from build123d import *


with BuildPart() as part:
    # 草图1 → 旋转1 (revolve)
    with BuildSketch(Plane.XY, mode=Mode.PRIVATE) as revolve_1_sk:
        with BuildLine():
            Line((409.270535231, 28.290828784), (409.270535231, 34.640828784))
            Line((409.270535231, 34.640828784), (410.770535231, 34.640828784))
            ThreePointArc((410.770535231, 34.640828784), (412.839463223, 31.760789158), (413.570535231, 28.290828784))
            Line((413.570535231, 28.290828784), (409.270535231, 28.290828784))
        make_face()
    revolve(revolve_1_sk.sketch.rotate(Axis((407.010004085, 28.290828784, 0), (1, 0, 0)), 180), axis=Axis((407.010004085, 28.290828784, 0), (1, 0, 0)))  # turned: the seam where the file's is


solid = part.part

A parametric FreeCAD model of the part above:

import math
import FreeCAD as App
import Part
import Sketcher
Q = App.Units.Quantity

doc = App.newDocument("Part")
body = doc.addObject("PartDesign::Body", "Body")

# Sketch on XY plane
sketch1 = doc.addObject("Sketcher::SketchObject", "Sketch")
body.addObject(sketch1)
sketch1.AttachmentSupport = (doc.XY_Plane, [""])
sketch1.MapMode = "FlatFace"
sketch1.addGeometry(Part.LineSegment(App.Vector(409.3, 34.6, 0), App.Vector(409.3, 28.3, 0)), False)
sketch1.addGeometry(Part.LineSegment(App.Vector(409.3, 28.3, 0), App.Vector(413.6, 28.3, 0)), False)
sketch1.addGeometry(Part.ArcOfCircle(Part.Circle(App.Vector(405, 28.3, 0), App.Vector(0, 0, 1), 8.6), math.radians(0), math.radians(48)), False)
sketch1.addGeometry(Part.LineSegment(App.Vector(410.8, 34.6, 0), App.Vector(409.3, 34.6, 0)), False)
sketch1.addGeometry(Part.LineSegment(App.Vector(405, 28.3, 0), App.Vector(413.6, 28.3, 0)), True)  # axis
sketch1.addConstraint(Sketcher.Constraint("Coincident", 0, 2, 1, 1))
sketch1.addConstraint(Sketcher.Constraint("Coincident", 1, 2, 2, 1))
sketch1.addConstraint(Sketcher.Constraint("Coincident", 2, 2, 3, 1))
sketch1.addConstraint(Sketcher.Constraint("Coincident", 3, 2, 0, 1))
sketch1.addConstraint(Sketcher.Constraint("Vertical", 0))
sketch1.addConstraint(Sketcher.Constraint("Horizontal", 1))
sketch1.addConstraint(Sketcher.Constraint("Horizontal", 3))
sketch1.addConstraint(Sketcher.Constraint("Horizontal", 4))
sketch1.addConstraint(Sketcher.Constraint("Coincident", 4, 1, 2, 3))
sketch1.addConstraint(Sketcher.Constraint("Coincident", 4, 2, 1, 2))
sketch1.addConstraint(Sketcher.Constraint("DistanceX", 1, 1, 1, 2, Q("4.3 mm")))
sketch1.addConstraint(Sketcher.Constraint("DistanceX", 3, 2, 3, 1, Q("1.5 mm")))
sketch1.addConstraint(Sketcher.Constraint("DistanceY", 0, 2, 0, 1, Q("6.35 mm")))
sketch1.addConstraint(Sketcher.Constraint("DistanceX", -1, 1, 2, 3, Q("404.970089 mm")))
sketch1.addConstraint(Sketcher.Constraint("DistanceY", -1, 1, 2, 3, Q("28.290829 mm")))
revolution = doc.addObject("PartDesign::Revolution", "Revolution")
body.addObject(revolution)
revolution.Profile = sketch1
revolution.ReferenceAxis = (sketch1, ["Axis0"])
revolution.Angle = 360

doc.recompute()
